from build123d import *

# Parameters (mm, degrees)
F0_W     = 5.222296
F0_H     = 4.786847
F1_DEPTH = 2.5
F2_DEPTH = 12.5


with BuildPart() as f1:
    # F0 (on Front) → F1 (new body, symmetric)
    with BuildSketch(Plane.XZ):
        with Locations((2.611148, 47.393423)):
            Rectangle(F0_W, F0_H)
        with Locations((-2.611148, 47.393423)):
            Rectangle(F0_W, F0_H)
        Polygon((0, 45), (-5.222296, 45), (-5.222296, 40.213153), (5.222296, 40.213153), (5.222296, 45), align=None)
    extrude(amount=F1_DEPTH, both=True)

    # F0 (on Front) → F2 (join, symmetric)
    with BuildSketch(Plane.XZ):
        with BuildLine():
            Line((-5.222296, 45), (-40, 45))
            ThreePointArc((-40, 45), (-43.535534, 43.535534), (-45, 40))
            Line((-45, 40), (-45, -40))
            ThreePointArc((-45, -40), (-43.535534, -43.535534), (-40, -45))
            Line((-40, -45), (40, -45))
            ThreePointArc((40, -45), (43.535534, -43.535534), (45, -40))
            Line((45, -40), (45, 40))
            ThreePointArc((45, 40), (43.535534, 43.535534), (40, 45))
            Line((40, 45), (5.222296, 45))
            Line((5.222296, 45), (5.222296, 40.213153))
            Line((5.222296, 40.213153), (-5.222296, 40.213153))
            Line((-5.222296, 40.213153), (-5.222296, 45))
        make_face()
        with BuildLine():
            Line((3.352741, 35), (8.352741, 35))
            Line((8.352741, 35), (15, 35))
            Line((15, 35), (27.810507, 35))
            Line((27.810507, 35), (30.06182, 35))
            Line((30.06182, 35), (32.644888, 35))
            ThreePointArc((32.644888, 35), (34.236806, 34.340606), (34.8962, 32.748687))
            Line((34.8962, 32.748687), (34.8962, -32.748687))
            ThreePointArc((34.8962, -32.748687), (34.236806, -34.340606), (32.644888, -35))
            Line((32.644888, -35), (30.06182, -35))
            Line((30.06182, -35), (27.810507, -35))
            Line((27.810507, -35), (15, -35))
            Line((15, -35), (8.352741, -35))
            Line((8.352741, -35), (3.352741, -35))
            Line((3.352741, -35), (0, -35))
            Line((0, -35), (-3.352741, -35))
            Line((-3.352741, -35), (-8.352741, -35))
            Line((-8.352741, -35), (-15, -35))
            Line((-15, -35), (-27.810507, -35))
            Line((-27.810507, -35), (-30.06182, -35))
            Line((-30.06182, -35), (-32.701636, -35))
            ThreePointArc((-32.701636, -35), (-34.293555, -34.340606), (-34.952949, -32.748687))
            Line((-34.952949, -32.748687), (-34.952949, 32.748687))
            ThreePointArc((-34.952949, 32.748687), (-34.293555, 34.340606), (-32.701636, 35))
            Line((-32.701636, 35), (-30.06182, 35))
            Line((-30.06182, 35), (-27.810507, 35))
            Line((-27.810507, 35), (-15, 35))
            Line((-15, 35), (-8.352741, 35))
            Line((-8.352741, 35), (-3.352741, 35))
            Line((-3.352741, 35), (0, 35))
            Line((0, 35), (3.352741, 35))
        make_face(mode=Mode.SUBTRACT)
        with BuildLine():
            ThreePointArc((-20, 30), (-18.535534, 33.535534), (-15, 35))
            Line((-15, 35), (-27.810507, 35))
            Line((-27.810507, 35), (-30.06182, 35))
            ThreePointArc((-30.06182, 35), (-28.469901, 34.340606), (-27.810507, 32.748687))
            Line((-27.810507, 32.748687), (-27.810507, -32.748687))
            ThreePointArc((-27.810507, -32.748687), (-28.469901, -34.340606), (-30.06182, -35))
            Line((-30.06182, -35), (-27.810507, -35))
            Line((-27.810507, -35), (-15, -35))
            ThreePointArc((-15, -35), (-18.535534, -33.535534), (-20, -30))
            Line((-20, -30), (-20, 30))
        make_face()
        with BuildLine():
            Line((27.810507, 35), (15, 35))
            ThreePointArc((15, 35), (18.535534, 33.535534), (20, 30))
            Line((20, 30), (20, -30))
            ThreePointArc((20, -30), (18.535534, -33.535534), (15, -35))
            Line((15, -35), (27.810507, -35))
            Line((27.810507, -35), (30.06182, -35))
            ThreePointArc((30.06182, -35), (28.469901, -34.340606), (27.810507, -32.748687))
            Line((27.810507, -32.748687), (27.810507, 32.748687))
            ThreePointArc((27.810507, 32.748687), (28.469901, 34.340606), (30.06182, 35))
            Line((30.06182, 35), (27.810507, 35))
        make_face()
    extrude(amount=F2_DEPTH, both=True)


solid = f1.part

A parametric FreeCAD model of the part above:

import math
import FreeCAD as App
import Part
import Sketcher
Q = App.Units.Quantity

doc = App.newDocument("Part")
body = doc.addObject("PartDesign::Body", "Body")

# Sketch on XZ plane
sketch1 = body.newObject("Sketcher::SketchObject", "Sketch")
sketch1.AttachmentSupport = (doc.getObject("XZ_Plane"), [""])
sketch1.MapMode = "FlatFace"
sketch1.addGeometry([
    Part.LineSegment(App.Vector(-5, 40, 0), App.Vector(5, 40, 0)),
    Part.LineSegment(App.Vector(5, 40, 0), App.Vector(5, 50, 0)),
    Part.LineSegment(App.Vector(5, 50, 0), App.Vector(-5, 50, 0)),
    Part.LineSegment(App.Vector(-5, 50, 0), App.Vector(-5, 40, 0)),
], False)
sketch1.addConstraint([
    Sketcher.Constraint("Coincident", 0, 2, 1, 1),
    Sketcher.Constraint("Coincident", 1, 2, 2, 1),
    Sketcher.Constraint("Coincident", 2, 2, 3, 1),
    Sketcher.Constraint("Coincident", 3, 2, 0, 1),
    Sketcher.Constraint("Horizontal", 0),
    Sketcher.Constraint("Vertical", 1),
    Sketcher.Constraint("Horizontal", 2),
    Sketcher.Constraint("Vertical", 3),
    Sketcher.Constraint("DistanceX", 0, 1, 0, 2, Q("10.444592 mm")),
    Sketcher.Constraint("DistanceY", 1, 1, 1, 2, Q("9.573694 mm")),
    Sketcher.Constraint("DistanceX", -1, 1, 0, 2, Q("5.222296 mm")),
    Sketcher.Constraint("DistanceY", -1, 1, 0, 2, Q("40.213153 mm")),
])
pad1 = body.newObject("PartDesign::Pad", "Pad")
pad1.Profile = sketch1
pad1.Length = 5
pad1.Midplane = True

# Sketch on XZ plane
sketch2 = body.newObject("Sketcher::SketchObject", "Sketch001")
sketch2.AttachmentSupport = (doc.getObject("XZ_Plane"), [""])
sketch2.MapMode = "FlatFace"
sketch2.addGeometry([
    Part.LineSegment(App.Vector(-5.2, 45, 0), App.Vector(-40, 45, 0)),  # 0
    Part.ArcOfCircle(Part.Circle(App.Vector(-40, 40, 0), App.Vector(0, 0, 1), 5), math.radians(90), math.radians(180)),  # 1
    Part.LineSegment(App.Vector(-45, 40, 0), App.Vector(-45, -40, 0)),  # 2
    Part.ArcOfCircle(Part.Circle(App.Vector(-40, -40, 0), App.Vector(0, 0, 1), 5), math.radians(180), math.radians(270)),  # 3
    Part.LineSegment(App.Vector(-40, -45, 0), App.Vector(40, -45, 0)),  # 4
    Part.ArcOfCircle(Part.Circle(App.Vector(40, -40, 0), App.Vector(0, 0, 1), 5), math.radians(-90), math.radians(0)),  # 5
    Part.LineSegment(App.Vector(45, -40, 0), App.Vector(45, 40, 0)),  # 6
    Part.ArcOfCircle(Part.Circle(App.Vector(40, 40, 0), App.Vector(0, 0, 1), 5), math.radians(0), math.radians(90)),  # 7
    Part.LineSegment(App.Vector(40, 45, 0), App.Vector(5.2, 45, 0)),  # 8
    Part.LineSegment(App.Vector(5.2, 45, 0), App.Vector(5.2, 40.2, 0)),  # 9
    Part.LineSegment(App.Vector(5.2, 40.2, 0), App.Vector(-5.2, 40.2, 0)),  # 10
    Part.LineSegment(App.Vector(-5.2, 40.2, 0), App.Vector(-5.2, 45, 0)),  # 11
    Part.LineSegment(App.Vector(-32.7, 35, 0), App.Vector(-30.1, 35, 0)),  # 12
    Part.ArcOfCircle(Part.Circle(App.Vector(-30.1, 32.7, 0), App.Vector(0, 0, 1), 2.3), math.radians(0), math.radians(90)),  # 13
    Part.LineSegment(App.Vector(-27.8, 32.7, 0), App.Vector(-27.8, -32.7, 0)),  # 14
    Part.ArcOfCircle(Part.Circle(App.Vector(-30.1, -32.7, 0), App.Vector(0, 0, 1), 2.3), math.radians(-90), math.radians(0)),  # 15
    Part.LineSegment(App.Vector(-30.1, -35, 0), App.Vector(-32.7, -35, 0)),  # 16
    Part.ArcOfCircle(Part.Circle(App.Vector(-32.7, -32.7, 0), App.Vector(0, 0, 1), 2.3), math.radians(180), math.radians(270)),  # 17
    Part.LineSegment(App.Vector(-35, -32.7, 0), App.Vector(-35, 32.7, 0)),  # 18
    Part.ArcOfCircle(Part.Circle(App.Vector(-32.7, 32.7, 0), App.Vector(0, 0, 1), 2.3), math.radians(90), math.radians(180)),  # 19
    Part.LineSegment(App.Vector(-15, 35, 0), App.Vector(15, 35, 0)),  # 20
    Part.ArcOfCircle(Part.Circle(App.Vector(15, 30, 0), App.Vector(0, 0, 1), 5), math.radians(0), math.radians(90)),  # 21
    Part.LineSegment(App.Vector(20, 30, 0), App.Vector(20, -30, 0)),  # 22
    Part.ArcOfCircle(Part.Circle(App.Vector(15, -30, 0), App.Vector(0, 0, 1), 5), math.radians(-90), math.radians(0)),  # 23
    Part.LineSegment(App.Vector(15, -35, 0), App.Vector(-15, -35, 0)),  # 24
    Part.ArcOfCircle(Part.Circle(App.Vector(-15, -30, 0), App.Vector(0, 0, 1), 5), math.radians(180), math.radians(270)),  # 25
    Part.LineSegment(App.Vector(-20, -30, 0), App.Vector(-20, 30, 0)),  # 26
    Part.ArcOfCircle(Part.Circle(App.Vector(-15, 30, 0), App.Vector(0, 0, 1), 5), math.radians(90), math.radians(180)),  # 27
    Part.LineSegment(App.Vector(30.1, 35, 0), App.Vector(32.6, 35, 0)),  # 28
    Part.ArcOfCircle(Part.Circle(App.Vector(32.6, 32.7, 0), App.Vector(0, 0, 1), 2.3), math.radians(0), math.radians(90)),  # 29
    Part.LineSegment(App.Vector(34.9, 32.7, 0), App.Vector(34.9, -32.7, 0)),  # 30
    Part.ArcOfCircle(Part.Circle(App.Vector(32.6, -32.7, 0), App.Vector(0, 0, 1), 2.3), math.radians(-90), math.radians(0)),  # 31
    Part.LineSegment(App.Vector(32.6, -35, 0), App.Vector(30.1, -35, 0)),  # 32
    Part.ArcOfCircle(Part.Circle(App.Vector(30.1, -32.7, 0), App.Vector(0, 0, 1), 2.3), math.radians(180), math.radians(270)),  # 33
    Part.LineSegment(App.Vector(27.8, -32.7, 0), App.Vector(27.8, 32.7, 0)),  # 34
    Part.ArcOfCircle(Part.Circle(App.Vector(30.1, 32.7, 0), App.Vector(0, 0, 1), 2.3), math.radians(90), math.radians(180)),  # 35
], False)
sketch2.addConstraint([
    Sketcher.Constraint("Tangent", 0, 2, 1, 1),
    Sketcher.Constraint("Tangent", 1, 2, 2, 1),
    Sketcher.Constraint("Tangent", 2, 2, 3, 1),
    Sketcher.Constraint("Tangent", 3, 2, 4, 1),
    Sketcher.Constraint("Tangent", 4, 2, 5, 1),
    Sketcher.Constraint("Tangent", 5, 2, 6, 1),
    Sketcher.Constraint("Tangent", 6, 2, 7, 1),
    Sketcher.Constraint("Tangent", 7, 2, 8, 1),
    Sketcher.Constraint("Coincident", 8, 2, 9, 1),
    Sketcher.Constraint("Coincident", 9, 2, 10, 1),
    Sketcher.Constraint("Coincident", 10, 2, 11, 1),
    Sketcher.Constraint("Coincident", 11, 2, 0, 1),
    Sketcher.Constraint("Tangent", 12, 2, 13, 2),
    Sketcher.Constraint("Tangent", 13, 1, 14, 1),
    Sketcher.Constraint("Tangent", 14, 2, 15, 2),
    Sketcher.Constraint("Tangent", 15, 1, 16, 1),
    Sketcher.Constraint("Tangent", 16, 2, 17, 2),
    Sketcher.Constraint("Tangent", 17, 1, 18, 1),
    Sketcher.Constraint("Tangent", 18, 2, 19, 2),
    Sketcher.Constraint("Tangent", 19, 1, 12, 1),
    Sketcher.Constraint("Tangent", 20, 2, 21, 2),
    Sketcher.Constraint("Tangent", 21, 1, 22, 1),
    Sketcher.Constraint("Tangent", 22, 2, 23, 2),
    Sketcher.Constraint("Tangent", 23, 1, 24, 1),
    Sketcher.Constraint("Tangent", 24, 2, 25, 2),
    Sketcher.Constraint("Tangent", 25, 1, 26, 1),
    Sketcher.Constraint("Tangent", 26, 2, 27, 2),
    Sketcher.Constraint("Tangent", 27, 1, 20, 1),
    Sketcher.Constraint("Tangent", 28, 2, 29, 2),
    Sketcher.Constraint("Tangent", 29, 1, 30, 1),
    Sketcher.Constraint("Tangent", 30, 2, 31, 2),
    Sketcher.Constraint("Tangent", 31, 1, 32, 1),
    Sketcher.Constraint("Tangent", 32, 2, 33, 2),
    Sketcher.Constraint("Tangent", 33, 1, 34, 1),
    Sketcher.Constraint("Tangent", 34, 2, 35, 2),
    Sketcher.Constraint("Tangent", 35, 1, 28, 1),
    Sketcher.Constraint("Horizontal", 0),
    Sketcher.Constraint("Vertical", 2),
    Sketcher.Constraint("Horizontal", 4),
    Sketcher.Constraint("Vertical", 6),
    Sketcher.Constraint("Horizontal", 8),
    Sketcher.Constraint("Vertical", 9),
    Sketcher.Constraint("Horizontal", 10),
    Sketcher.Constraint("Vertical", 11),
    Sketcher.Constraint("Horizontal", 12),
    Sketcher.Constraint("Vertical", 14),
    Sketcher.Constraint("Horizontal", 16),
    Sketcher.Constraint("Vertical", 18),
    Sketcher.Constraint("Horizontal", 20),
    Sketcher.Constraint("Vertical", 22),
    Sketcher.Constraint("Horizontal", 24),
    Sketcher.Constraint("Vertical", 26),
    Sketcher.Constraint("Horizontal", 28),
    Sketcher.Constraint("Vertical", 30),
    Sketcher.Constraint("Horizontal", 32),
    Sketcher.Constraint("Vertical", 34),
    Sketcher.Constraint("Equal", 1, 3),
    Sketcher.Constraint("Equal", 3, 5),
    Sketcher.Constraint("Equal", 5, 7),
    Sketcher.Constraint("Equal", 13, 15),
    Sketcher.Constraint("Equal", 15, 17),
    Sketcher.Constraint("Equal", 17, 19),
    Sketcher.Constraint("Equal", 7, 21),
    Sketcher.Constraint("Equal", 21, 23),
    Sketcher.Constraint("Equal", 23, 25),
    Sketcher.Constraint("Equal", 25, 27),
    Sketcher.Constraint("Equal", 19, 29),
    Sketcher.Constraint("Equal", 29, 31),
    Sketcher.Constraint("Equal", 31, 33),
    Sketcher.Constraint("Equal", 33, 35),
    Sketcher.Constraint("Symmetric", 1, 3, 5, 3, -1, 1),
    Sketcher.Constraint("Symmetric", 21, 3, 25, 3, -1, 1),
    Sketcher.Constraint("Symmetric", 13, 3, 33, 3, -1, 1),
    Sketcher.Constraint("Symmetric", 8, 2, 11, 2, -2),
    Sketcher.Constraint("Horizontal", 19, 3, 29, 3),
    Sketcher.Constraint("Horizontal", 17, 3, 31, 3),
    Sketcher.Constraint("Horizontal", 19, 1, 20, 2),
    Sketcher.Constraint("Equal", 4, 2),
    Sketcher.Constraint("Radius", 1, Q("5 mm")),
    Sketcher.Constraint("DistanceX", 4, 1, 4, 2, Q("80 mm")),
    Sketcher.Constraint("DistanceX", 20, 1, 20, 2, Q("30 mm")),
    Sketcher.Constraint("DistanceY", 22, 2, 22, 1, Q("60 mm")),
    Sketcher.Constraint("Radius", 13, Q("2.251312 mm")),
    Sketcher.Constraint("DistanceX", 28, 1, 28, 2, Q("2.583068 mm")),
    Sketcher.Constraint("DistanceX", -1, 1, 29, 1, Q("34.8962 mm")),
    Sketcher.Constraint("DistanceX", 0, 2, 0, 1, Q("34.777704 mm")),
    Sketcher.Constraint("DistanceX", 12, 1, 12, 2, Q("2.639816 mm")),
    Sketcher.Constraint("DistanceY", 9, 2, 9, 1, Q("4.786847 mm")),
])
pad2 = body.newObject("PartDesign::Pad", "Pad001")
pad2.Profile = sketch2
pad2.Length = 25
pad2.Midplane = True

doc.recompute()
